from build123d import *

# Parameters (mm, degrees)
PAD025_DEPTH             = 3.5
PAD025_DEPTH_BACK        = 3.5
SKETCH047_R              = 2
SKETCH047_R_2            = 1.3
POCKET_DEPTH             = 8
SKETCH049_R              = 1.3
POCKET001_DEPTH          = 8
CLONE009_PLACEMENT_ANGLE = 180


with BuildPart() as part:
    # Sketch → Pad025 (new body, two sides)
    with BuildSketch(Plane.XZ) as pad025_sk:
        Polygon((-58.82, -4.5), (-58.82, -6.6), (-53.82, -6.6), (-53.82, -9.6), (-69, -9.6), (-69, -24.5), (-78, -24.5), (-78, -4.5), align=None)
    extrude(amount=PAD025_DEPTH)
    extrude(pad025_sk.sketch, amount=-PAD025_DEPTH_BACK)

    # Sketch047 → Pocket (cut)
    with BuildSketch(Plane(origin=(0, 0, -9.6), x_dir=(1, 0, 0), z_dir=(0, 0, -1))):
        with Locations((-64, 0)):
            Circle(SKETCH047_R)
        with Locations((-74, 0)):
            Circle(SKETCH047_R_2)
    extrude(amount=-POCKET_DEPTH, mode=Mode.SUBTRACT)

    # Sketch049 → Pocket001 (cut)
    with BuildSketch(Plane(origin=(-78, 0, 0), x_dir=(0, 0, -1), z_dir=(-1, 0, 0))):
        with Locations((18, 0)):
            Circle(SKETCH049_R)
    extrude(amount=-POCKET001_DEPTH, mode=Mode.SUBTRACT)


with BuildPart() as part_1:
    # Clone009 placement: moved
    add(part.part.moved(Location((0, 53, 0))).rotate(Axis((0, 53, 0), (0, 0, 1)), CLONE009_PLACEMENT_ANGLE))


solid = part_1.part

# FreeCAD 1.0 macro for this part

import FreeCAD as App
import Part
import Sketcher
from FreeCAD import Vector


def add_polygon(sketch, points):
    """Adds a closed chain of lines whose ends are joined by coincident constraints."""
    first, n = sketch.GeometryCount, len(points)
    for a, b in zip(points, points[1:] + points[:1]):
        sketch.addGeometry(Part.LineSegment(App.Vector(*a, 0), App.Vector(*b, 0)), False)
    for i in range(n):
        sketch.addConstraint(Sketcher.Constraint("Coincident", first + i, 2, first + (i + 1) % n, 1))

doc = App.newDocument("Part")
body = doc.addObject("PartDesign::Body", "Body")

sketch1 = body.newObject("Sketcher::SketchObject", "Sketch")
sketch1.AttachmentSupport = (doc.getObject("XZ_Plane"), [""])
sketch1.MapMode = "FlatFace"
add_polygon(sketch1, [(-58.8, -6.6), (-58.8, -4.5), (-78, -4.5), (-78, -24.5), (-69, -24.5), (-69, -9.6), (-53.8, -9.6), (-53.8, -6.6)])
sketch1.addConstraint(Sketcher.Constraint("Vertical", 0))
sketch1.addConstraint(Sketcher.Constraint("Horizontal", 1))
sketch1.addConstraint(Sketcher.Constraint("Vertical", 2))
sketch1.addConstraint(Sketcher.Constraint("Horizontal", 3))
sketch1.addConstraint(Sketcher.Constraint("Vertical", 4))
sketch1.addConstraint(Sketcher.Constraint("Horizontal", 5))
sketch1.addConstraint(Sketcher.Constraint("Vertical", 6))
sketch1.addConstraint(Sketcher.Constraint("Horizontal", 7))
sketch1.addConstraint(Sketcher.Constraint("DistanceX", 3, 1, 3, 2, 9.0))
sketch1.addConstraint(Sketcher.Constraint("DistanceX", 7, 2, 7, 1, 5.0))
sketch1.addConstraint(Sketcher.Constraint("DistanceY", 2, 2, 2, 1, 20.0))
sketch1.addConstraint(Sketcher.Constraint("DistanceY", 6, 1, 6, 2, 3.0))
sketch1.addConstraint(Sketcher.Constraint("DistanceY", 0, 1, 0, 2, 2.1))
sketch1.addConstraint(Sketcher.Constraint("DistanceX", 1, 2, -1, 1, 78.0))
sketch1.addConstraint(Sketcher.Constraint("DistanceX", 1, 2, 1, 1, 19.18))
sketch1.addConstraint(Sketcher.Constraint("DistanceY", 0, 2, -1, 1, 4.5))
pad1 = body.newObject("PartDesign::Pad", "Pad")
pad1.Profile = sketch1
pad1.Type = "TwoLengths"
pad1.Length = 3.5
pad1.Length2 = 3.5

sketch2 = body.newObject("Sketcher::SketchObject", "Sketch001")
sketch2.AttachmentSupport = (doc.getObject("XY_Plane"), [""])
sketch2.MapMode = "FlatFace"
sketch2.AttachmentOffset = App.Placement(Vector(0, 0, -9.6), App.Rotation())
sketch2.addGeometry(Part.Circle(Vector(-64, 0, 0), Vector(0, 0, 1), 2), False)
sketch2.addGeometry(Part.Circle(Vector(-74, 0, 0), Vector(0, 0, 1), 1.3), False)
sketch2.addConstraint(Sketcher.Constraint("PointOnObject", 0, 3, -1))
sketch2.addConstraint(Sketcher.Constraint("PointOnObject", 1, 3, -1))
sketch2.addConstraint(Sketcher.Constraint("Diameter", 0, 4.0))
sketch2.addConstraint(Sketcher.Constraint("Diameter", 1, 2.6))
sketch2.addConstraint(Sketcher.Constraint("DistanceX", 0, 3, -1, 1, 64.0))
sketch2.addConstraint(Sketcher.Constraint("DistanceX", 1, 3, -1, 1, 74.0))
pocket1 = body.newObject("PartDesign::Pocket", "Pocket")
pocket1.Profile = sketch2
pocket1.Length = 8
pocket1.Reversed = True

sketch3 = body.newObject("Sketcher::SketchObject", "Sketch002")
sketch3.AttachmentSupport = (doc.getObject("YZ_Plane"), [""])
sketch3.MapMode = "FlatFace"
sketch3.AttachmentOffset = App.Placement(Vector(0, 0, -78), App.Rotation())
sketch3.addGeometry(Part.Circle(Vector(0, -18, 0), Vector(0, 0, 1), 1.3), False)
sketch3.addConstraint(Sketcher.Constraint("PointOnObject", 0, 3, -2))
sketch3.addConstraint(Sketcher.Constraint("Diameter", 0, 2.6))
sketch3.addConstraint(Sketcher.Constraint("DistanceY", 0, 3, -1, 1, 18.0))
pocket2 = body.newObject("PartDesign::Pocket", "Pocket001")
pocket2.Profile = sketch3
pocket2.Length = 8
pocket2.Reversed = True
body2 = doc.addObject("PartDesign::Body", "Body001")
doc.recompute()

body.Placement = App.Placement(Vector(0, 53, 0), App.Rotation(Vector(0, 0, 1), 180))
boolean = body2.newObject("PartDesign::Boolean", "Boolean")
boolean.Type = "Fuse"
boolean.addObjects([body])

doc.recompute()
